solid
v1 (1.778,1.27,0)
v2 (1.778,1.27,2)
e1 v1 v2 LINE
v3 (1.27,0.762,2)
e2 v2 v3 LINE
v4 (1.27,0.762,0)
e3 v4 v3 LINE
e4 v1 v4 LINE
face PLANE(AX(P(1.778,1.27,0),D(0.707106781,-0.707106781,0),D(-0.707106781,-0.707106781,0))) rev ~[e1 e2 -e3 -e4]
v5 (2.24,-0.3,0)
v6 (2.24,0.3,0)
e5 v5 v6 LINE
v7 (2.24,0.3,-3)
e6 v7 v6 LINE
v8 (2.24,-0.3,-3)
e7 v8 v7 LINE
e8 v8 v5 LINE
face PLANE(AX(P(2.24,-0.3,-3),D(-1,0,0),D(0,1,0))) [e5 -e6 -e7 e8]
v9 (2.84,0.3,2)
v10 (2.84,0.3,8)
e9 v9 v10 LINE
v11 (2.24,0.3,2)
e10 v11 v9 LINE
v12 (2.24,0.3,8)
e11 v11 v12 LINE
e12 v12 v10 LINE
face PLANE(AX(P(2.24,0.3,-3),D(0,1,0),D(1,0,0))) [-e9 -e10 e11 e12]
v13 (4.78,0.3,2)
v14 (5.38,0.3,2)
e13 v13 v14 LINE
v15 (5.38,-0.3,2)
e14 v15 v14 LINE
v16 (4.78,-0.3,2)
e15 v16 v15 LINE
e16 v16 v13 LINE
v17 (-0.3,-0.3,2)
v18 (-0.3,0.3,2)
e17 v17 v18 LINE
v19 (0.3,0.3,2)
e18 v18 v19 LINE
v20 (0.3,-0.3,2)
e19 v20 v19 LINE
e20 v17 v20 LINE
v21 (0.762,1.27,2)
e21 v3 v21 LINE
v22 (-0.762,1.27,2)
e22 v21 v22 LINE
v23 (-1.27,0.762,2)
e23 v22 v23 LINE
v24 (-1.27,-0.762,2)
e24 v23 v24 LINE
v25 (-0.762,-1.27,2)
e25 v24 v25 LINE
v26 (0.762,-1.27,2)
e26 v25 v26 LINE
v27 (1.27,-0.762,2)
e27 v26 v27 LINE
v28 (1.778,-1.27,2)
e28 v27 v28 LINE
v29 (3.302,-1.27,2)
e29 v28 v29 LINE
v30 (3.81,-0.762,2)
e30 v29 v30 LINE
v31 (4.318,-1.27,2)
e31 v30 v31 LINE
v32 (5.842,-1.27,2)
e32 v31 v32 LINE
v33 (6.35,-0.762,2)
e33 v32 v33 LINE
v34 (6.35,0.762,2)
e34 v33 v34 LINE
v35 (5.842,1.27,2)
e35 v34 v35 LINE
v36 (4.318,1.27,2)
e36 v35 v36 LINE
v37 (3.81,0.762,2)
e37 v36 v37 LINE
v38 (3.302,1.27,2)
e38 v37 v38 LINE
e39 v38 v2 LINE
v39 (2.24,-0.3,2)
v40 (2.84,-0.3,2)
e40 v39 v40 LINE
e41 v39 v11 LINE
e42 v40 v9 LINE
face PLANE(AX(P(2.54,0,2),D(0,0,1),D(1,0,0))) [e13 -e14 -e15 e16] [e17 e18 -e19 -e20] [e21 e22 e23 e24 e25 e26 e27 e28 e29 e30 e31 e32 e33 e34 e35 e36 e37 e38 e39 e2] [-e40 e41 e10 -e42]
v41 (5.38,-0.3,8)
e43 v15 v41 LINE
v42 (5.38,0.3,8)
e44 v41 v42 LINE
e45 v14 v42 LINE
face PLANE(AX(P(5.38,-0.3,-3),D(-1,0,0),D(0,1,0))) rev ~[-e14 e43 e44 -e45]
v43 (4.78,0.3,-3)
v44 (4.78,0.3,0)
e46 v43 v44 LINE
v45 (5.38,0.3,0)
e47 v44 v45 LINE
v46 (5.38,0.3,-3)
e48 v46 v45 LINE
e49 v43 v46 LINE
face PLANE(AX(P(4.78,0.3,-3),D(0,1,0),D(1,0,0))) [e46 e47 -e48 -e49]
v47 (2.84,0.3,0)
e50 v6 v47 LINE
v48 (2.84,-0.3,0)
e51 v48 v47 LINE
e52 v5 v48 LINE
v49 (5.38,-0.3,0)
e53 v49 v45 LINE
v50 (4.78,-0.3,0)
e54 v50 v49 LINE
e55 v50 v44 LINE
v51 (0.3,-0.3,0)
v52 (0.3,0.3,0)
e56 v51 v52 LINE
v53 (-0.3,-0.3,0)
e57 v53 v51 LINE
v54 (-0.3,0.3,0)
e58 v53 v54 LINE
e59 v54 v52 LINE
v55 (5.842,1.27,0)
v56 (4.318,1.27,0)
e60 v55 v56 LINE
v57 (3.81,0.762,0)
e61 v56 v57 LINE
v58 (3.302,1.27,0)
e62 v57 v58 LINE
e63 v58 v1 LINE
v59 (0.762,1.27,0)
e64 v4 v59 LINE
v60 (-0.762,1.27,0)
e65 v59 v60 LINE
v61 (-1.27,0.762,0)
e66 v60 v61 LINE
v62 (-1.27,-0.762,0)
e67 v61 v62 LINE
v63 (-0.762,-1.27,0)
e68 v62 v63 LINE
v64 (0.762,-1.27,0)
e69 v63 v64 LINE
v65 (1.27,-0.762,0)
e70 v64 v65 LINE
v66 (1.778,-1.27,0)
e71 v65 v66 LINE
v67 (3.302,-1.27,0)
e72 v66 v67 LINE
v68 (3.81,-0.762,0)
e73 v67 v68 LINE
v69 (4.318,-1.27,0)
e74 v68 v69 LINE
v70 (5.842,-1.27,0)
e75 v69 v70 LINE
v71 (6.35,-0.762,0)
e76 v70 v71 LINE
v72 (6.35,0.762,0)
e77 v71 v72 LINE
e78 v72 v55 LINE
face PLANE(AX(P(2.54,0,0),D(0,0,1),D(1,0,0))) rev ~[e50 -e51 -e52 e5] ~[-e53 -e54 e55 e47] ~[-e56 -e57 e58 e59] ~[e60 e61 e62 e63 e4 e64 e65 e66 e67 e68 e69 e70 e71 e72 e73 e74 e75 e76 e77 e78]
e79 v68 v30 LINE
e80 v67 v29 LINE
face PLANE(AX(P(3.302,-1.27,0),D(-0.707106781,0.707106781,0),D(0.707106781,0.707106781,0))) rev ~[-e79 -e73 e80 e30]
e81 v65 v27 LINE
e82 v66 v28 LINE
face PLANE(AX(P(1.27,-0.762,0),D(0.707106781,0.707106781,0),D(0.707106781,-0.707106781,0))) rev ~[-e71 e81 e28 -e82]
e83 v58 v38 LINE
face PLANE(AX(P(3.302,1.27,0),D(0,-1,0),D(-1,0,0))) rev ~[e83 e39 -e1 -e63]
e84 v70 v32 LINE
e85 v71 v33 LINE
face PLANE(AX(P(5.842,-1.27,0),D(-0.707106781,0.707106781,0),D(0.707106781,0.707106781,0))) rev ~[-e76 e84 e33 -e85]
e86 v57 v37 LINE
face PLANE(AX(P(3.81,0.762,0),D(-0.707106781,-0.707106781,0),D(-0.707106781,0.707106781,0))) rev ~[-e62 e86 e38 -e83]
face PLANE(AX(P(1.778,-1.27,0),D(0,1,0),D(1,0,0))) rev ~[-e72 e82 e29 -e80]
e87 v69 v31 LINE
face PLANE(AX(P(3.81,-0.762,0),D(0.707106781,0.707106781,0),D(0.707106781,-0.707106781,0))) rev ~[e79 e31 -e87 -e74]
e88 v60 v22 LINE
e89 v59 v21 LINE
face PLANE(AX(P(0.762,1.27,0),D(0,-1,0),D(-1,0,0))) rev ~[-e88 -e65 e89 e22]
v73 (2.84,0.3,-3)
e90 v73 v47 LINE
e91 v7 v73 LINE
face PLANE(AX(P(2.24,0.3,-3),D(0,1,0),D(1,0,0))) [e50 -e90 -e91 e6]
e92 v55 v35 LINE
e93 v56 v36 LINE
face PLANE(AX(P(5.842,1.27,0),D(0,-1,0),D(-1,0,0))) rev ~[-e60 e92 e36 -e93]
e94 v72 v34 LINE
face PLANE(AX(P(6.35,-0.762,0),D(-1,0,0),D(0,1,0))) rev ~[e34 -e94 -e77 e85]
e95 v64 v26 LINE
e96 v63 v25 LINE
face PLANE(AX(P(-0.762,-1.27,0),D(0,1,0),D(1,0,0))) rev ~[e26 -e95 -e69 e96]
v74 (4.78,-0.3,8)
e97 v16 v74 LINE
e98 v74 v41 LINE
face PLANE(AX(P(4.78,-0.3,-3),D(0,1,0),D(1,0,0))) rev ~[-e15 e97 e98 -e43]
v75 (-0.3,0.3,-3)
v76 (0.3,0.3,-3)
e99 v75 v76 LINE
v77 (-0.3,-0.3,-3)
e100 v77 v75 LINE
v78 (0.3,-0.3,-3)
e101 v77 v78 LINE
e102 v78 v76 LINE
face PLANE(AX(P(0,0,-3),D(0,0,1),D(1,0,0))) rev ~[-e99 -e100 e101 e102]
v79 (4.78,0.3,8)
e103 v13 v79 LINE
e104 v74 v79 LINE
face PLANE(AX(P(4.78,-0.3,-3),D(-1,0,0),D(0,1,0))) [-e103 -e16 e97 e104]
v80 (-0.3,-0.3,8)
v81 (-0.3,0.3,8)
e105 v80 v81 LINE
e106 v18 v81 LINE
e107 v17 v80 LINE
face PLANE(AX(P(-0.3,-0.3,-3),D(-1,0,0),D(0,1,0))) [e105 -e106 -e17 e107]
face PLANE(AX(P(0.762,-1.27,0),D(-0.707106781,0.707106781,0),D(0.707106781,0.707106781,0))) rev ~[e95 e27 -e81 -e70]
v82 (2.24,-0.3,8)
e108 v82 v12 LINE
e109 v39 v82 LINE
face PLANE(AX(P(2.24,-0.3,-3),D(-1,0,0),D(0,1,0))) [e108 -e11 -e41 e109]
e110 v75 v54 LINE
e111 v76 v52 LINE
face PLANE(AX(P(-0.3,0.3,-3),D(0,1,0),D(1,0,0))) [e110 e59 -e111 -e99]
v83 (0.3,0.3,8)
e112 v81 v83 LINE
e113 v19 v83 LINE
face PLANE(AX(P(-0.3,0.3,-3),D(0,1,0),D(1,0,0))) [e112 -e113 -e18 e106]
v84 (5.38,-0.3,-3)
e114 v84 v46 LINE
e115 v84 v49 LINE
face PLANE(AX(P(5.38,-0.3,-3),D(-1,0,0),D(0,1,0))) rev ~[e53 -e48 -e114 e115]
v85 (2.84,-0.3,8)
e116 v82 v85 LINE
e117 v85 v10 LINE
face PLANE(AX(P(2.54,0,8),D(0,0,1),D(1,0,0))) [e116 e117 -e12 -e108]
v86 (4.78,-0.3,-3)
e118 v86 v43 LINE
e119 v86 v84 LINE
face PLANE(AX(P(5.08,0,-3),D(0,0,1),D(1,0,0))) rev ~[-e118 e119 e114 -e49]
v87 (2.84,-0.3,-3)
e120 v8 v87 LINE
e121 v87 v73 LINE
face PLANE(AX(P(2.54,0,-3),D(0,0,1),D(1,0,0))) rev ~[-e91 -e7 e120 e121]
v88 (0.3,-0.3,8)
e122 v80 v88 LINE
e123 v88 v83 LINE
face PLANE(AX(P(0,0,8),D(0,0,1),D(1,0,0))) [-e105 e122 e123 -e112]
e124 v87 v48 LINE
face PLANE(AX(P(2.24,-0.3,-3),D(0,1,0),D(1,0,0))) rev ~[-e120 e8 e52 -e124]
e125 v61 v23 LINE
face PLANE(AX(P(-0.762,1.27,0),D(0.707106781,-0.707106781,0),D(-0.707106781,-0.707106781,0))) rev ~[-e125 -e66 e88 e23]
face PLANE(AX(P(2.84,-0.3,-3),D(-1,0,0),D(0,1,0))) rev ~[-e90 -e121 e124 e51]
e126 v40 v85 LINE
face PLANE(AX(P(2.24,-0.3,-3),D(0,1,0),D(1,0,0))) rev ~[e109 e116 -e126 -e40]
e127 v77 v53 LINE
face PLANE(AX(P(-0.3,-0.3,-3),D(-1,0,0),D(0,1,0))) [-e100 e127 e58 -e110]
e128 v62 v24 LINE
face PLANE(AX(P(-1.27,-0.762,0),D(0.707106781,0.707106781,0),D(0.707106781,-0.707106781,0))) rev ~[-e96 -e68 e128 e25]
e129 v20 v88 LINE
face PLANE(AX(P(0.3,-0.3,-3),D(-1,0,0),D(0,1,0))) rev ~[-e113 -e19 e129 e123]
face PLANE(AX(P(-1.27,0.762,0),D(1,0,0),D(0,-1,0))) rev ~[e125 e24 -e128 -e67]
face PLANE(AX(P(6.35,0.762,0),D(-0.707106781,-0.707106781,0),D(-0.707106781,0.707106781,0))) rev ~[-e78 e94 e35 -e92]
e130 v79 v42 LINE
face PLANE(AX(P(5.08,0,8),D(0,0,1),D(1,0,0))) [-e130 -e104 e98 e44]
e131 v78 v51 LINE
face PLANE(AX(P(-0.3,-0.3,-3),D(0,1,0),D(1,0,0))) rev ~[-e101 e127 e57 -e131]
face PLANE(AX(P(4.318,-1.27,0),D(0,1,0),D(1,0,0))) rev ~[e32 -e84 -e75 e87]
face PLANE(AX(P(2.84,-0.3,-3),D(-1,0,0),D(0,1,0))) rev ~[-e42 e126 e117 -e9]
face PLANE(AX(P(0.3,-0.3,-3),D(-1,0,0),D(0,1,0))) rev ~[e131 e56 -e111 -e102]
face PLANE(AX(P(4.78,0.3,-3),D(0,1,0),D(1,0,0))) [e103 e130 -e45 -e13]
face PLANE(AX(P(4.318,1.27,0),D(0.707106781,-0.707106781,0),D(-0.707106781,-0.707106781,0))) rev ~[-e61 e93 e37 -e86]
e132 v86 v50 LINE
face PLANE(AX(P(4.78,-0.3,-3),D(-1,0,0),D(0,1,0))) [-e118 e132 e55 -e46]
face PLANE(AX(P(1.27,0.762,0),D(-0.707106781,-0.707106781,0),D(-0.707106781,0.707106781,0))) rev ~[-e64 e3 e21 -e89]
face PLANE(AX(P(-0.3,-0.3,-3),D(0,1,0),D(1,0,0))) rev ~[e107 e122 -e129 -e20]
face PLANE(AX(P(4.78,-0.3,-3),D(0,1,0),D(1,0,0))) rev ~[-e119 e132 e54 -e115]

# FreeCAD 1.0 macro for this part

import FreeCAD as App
import Part
import Sketcher


def add_polygon(sketch, points):
    """Adds a closed chain of lines whose ends are joined by coincident constraints."""
    first, n = sketch.GeometryCount, len(points)
    for a, b in zip(points, points[1:] + points[:1]):
        sketch.addGeometry(Part.LineSegment(App.Vector(*a, 0), App.Vector(*b, 0)), False)
    for i in range(n):
        sketch.addConstraint(Sketcher.Constraint("Coincident", first + i, 2, first + (i + 1) % n, 1))

doc = App.newDocument("Part")
body = doc.addObject("PartDesign::Body", "Body")

# Sketch on XY plane
sketch1 = body.newObject("Sketcher::SketchObject", "Sketch")
sketch1.AttachmentSupport = (doc.getObject("XY_Plane"), [""])
sketch1.MapMode = "FlatFace"
add_polygon(sketch1, [(-0.8, 1.3), (-1.3, 0.8), (-1.3, -0.8), (-0.8, -1.3), (0.8, -1.3), (1.3, -0.8), (1.8, -1.3), (3.3, -1.3), (3.8, -0.8), (4.3, -1.3), (5.8, -1.3), (6.3, -0.8), (6.3, 0.8), (5.8, 1.3), (4.3, 1.3), (3.8, 0.8), (3.3, 1.3), (1.8, 1.3), (1.3, 0.8), (0.8, 1.3)])  # lines 0-19
add_polygon(sketch1, [(0.3, -0.3), (-0.3, -0.3), (-0.3, 0.3), (0.3, 0.3)])  # lines 20-23
add_polygon(sketch1, [(2.8, -0.3), (2.2, -0.3), (2.2, 0.3), (2.8, 0.3)])  # lines 24-27
add_polygon(sketch1, [(5.4, -0.3), (4.8, -0.3), (4.8, 0.3), (5.4, 0.3)])  # lines 28-31
sketch1.addConstraint([
    Sketcher.Constraint("Vertical", 1),
    Sketcher.Constraint("Horizontal", 3),
    Sketcher.Constraint("Horizontal", 6),
    Sketcher.Constraint("Horizontal", 9),
    Sketcher.Constraint("Vertical", 11),
    Sketcher.Constraint("Horizontal", 13),
    Sketcher.Constraint("Horizontal", 16),
    Sketcher.Constraint("Horizontal", 19),
    Sketcher.Constraint("Horizontal", 20),
    Sketcher.Constraint("Vertical", 21),
    Sketcher.Constraint("Horizontal", 22),
    Sketcher.Constraint("Vertical", 23),
    Sketcher.Constraint("Horizontal", 24),
    Sketcher.Constraint("Vertical", 25),
    Sketcher.Constraint("Horizontal", 26),
    Sketcher.Constraint("Vertical", 27),
    Sketcher.Constraint("Horizontal", 28),
    Sketcher.Constraint("Vertical", 29),
    Sketcher.Constraint("Horizontal", 30),
    Sketcher.Constraint("Vertical", 31),
    Sketcher.Constraint("Symmetric", 0, 2, 4, 2, -1, 1),
    Sketcher.Constraint("Symmetric", 1, 2, 17, 2, -1, 1),
    Sketcher.Constraint("Symmetric", 2, 2, 18, 2, -1, 1),
    Sketcher.Constraint("Symmetric", 20, 2, 22, 2, -1, 1),
    Sketcher.Constraint("Symmetric", 9, 2, 12, 2, -1),
    Sketcher.Constraint("Symmetric", 7, 2, 14, 2, -1),
    Sketcher.Constraint("Symmetric", 6, 2, 15, 2, -1),
    Sketcher.Constraint("Perpendicular", 0, 2),
    Sketcher.Constraint("Perpendicular", 2, 4),
    Sketcher.Constraint("Perpendicular", 4, 5),
    Sketcher.Constraint("Perpendicular", 5, 7),
    Sketcher.Constraint("Perpendicular", 7, 8),
    Sketcher.Constraint("Perpendicular", 8, 10),
    Sketcher.Constraint("Perpendicular", 10, 12),
    Sketcher.Constraint("Perpendicular", 12, 14),
    Sketcher.Constraint("Perpendicular", 14, 15),
    Sketcher.Constraint("Perpendicular", 15, 17),
    Sketcher.Constraint("Horizontal", 1, 2, 4, 2),
    Sketcher.Constraint("Horizontal", 3, 2, 5, 2),
    Sketcher.Constraint("Horizontal", 4, 2, 7, 2),
    Sketcher.Constraint("Horizontal", 6, 2, 8, 2),
    Sketcher.Constraint("Horizontal", 7, 2, 10, 2),
    Sketcher.Constraint("Horizontal", 23, 2, 24, 2),
    Sketcher.Constraint("Horizontal", 22, 2, 25, 2),
    Sketcher.Constraint("Horizontal", 27, 2, 28, 2),
    Sketcher.Constraint("Horizontal", 26, 2, 29, 2),
    Sketcher.Constraint("Equal", 3, 6),
    Sketcher.Constraint("Equal", 6, 9),
    Sketcher.Constraint("Equal", 22, 24),
    Sketcher.Constraint("Equal", 26, 28),
    Sketcher.Constraint("Equal", 19, 1),
    Sketcher.Constraint("Equal", 30, 21),
    Sketcher.Constraint("DistanceX", 20, 2, 20, 1, 0.6),
    Sketcher.Constraint("DistanceX", 3, 1, 3, 2, 1.524),
    Sketcher.Constraint("DistanceX", 0, 2, -1, 1, 1.27),
    Sketcher.Constraint("DistanceX", -1, 1, 24, 2, 2.24),
    Sketcher.Constraint("DistanceX", -1, 1, 28, 2, 4.78),
])
pad1 = body.newObject("PartDesign::Pad", "Pad")
pad1.Profile = sketch1
pad1.Length = 2

# Sketch on XY plane
sketch2 = body.newObject("Sketcher::SketchObject", "Sketch001")
sketch2.AttachmentSupport = (doc.getObject("XY_Plane"), [""])
sketch2.MapMode = "FlatFace"
sketch2.AttachmentOffset = App.Placement(App.Vector(0, 0, 2), App.Rotation())
add_polygon(sketch2, [(-0.3, 0.3), (-0.3, -0.3), (0.3, -0.3), (0.3, 0.3)])  # lines 0-3
add_polygon(sketch2, [(2.2, 0.3), (2.2, -0.3), (2.8, -0.3), (2.8, 0.3)])  # lines 4-7
add_polygon(sketch2, [(4.8, 0.3), (4.8, -0.3), (5.4, -0.3), (5.4, 0.3)])  # lines 8-11
sketch2.addConstraint([
    Sketcher.Constraint("Vertical", 0),
    Sketcher.Constraint("Horizontal", 1),
    Sketcher.Constraint("Vertical", 2),
    Sketcher.Constraint("Horizontal", 3),
    Sketcher.Constraint("Vertical", 4),
    Sketcher.Constraint("Horizontal", 5),
    Sketcher.Constraint("Vertical", 6),
    Sketcher.Constraint("Horizontal", 7),
    Sketcher.Constraint("Vertical", 8),
    Sketcher.Constraint("Horizontal", 9),
    Sketcher.Constraint("Vertical", 10),
    Sketcher.Constraint("Horizontal", 11),
    Sketcher.Constraint("Symmetric", 0, 2, 2, 2, -1, 1),
    Sketcher.Constraint("Horizontal", 1, 2, 4, 2),
    Sketcher.Constraint("Horizontal", 3, 2, 6, 2),
    Sketcher.Constraint("Horizontal", 5, 2, 8, 2),
    Sketcher.Constraint("Horizontal", 7, 2, 10, 2),
    Sketcher.Constraint("Equal", 3, 5),
    Sketcher.Constraint("Equal", 7, 9),
    Sketcher.Constraint("Equal", 11, 0),
    Sketcher.Constraint("DistanceX", 1, 1, 1, 2, 0.6),
    Sketcher.Constraint("DistanceX", -1, 1, 4, 2, 2.24),
    Sketcher.Constraint("DistanceX", -1, 1, 8, 2, 4.78),
])
pad2 = body.newObject("PartDesign::Pad", "Pad001")
pad2.Profile = sketch2
pad2.Type = "TwoLengths"
pad2.Length = 6
pad2.Length2 = 5

doc.recompute()
